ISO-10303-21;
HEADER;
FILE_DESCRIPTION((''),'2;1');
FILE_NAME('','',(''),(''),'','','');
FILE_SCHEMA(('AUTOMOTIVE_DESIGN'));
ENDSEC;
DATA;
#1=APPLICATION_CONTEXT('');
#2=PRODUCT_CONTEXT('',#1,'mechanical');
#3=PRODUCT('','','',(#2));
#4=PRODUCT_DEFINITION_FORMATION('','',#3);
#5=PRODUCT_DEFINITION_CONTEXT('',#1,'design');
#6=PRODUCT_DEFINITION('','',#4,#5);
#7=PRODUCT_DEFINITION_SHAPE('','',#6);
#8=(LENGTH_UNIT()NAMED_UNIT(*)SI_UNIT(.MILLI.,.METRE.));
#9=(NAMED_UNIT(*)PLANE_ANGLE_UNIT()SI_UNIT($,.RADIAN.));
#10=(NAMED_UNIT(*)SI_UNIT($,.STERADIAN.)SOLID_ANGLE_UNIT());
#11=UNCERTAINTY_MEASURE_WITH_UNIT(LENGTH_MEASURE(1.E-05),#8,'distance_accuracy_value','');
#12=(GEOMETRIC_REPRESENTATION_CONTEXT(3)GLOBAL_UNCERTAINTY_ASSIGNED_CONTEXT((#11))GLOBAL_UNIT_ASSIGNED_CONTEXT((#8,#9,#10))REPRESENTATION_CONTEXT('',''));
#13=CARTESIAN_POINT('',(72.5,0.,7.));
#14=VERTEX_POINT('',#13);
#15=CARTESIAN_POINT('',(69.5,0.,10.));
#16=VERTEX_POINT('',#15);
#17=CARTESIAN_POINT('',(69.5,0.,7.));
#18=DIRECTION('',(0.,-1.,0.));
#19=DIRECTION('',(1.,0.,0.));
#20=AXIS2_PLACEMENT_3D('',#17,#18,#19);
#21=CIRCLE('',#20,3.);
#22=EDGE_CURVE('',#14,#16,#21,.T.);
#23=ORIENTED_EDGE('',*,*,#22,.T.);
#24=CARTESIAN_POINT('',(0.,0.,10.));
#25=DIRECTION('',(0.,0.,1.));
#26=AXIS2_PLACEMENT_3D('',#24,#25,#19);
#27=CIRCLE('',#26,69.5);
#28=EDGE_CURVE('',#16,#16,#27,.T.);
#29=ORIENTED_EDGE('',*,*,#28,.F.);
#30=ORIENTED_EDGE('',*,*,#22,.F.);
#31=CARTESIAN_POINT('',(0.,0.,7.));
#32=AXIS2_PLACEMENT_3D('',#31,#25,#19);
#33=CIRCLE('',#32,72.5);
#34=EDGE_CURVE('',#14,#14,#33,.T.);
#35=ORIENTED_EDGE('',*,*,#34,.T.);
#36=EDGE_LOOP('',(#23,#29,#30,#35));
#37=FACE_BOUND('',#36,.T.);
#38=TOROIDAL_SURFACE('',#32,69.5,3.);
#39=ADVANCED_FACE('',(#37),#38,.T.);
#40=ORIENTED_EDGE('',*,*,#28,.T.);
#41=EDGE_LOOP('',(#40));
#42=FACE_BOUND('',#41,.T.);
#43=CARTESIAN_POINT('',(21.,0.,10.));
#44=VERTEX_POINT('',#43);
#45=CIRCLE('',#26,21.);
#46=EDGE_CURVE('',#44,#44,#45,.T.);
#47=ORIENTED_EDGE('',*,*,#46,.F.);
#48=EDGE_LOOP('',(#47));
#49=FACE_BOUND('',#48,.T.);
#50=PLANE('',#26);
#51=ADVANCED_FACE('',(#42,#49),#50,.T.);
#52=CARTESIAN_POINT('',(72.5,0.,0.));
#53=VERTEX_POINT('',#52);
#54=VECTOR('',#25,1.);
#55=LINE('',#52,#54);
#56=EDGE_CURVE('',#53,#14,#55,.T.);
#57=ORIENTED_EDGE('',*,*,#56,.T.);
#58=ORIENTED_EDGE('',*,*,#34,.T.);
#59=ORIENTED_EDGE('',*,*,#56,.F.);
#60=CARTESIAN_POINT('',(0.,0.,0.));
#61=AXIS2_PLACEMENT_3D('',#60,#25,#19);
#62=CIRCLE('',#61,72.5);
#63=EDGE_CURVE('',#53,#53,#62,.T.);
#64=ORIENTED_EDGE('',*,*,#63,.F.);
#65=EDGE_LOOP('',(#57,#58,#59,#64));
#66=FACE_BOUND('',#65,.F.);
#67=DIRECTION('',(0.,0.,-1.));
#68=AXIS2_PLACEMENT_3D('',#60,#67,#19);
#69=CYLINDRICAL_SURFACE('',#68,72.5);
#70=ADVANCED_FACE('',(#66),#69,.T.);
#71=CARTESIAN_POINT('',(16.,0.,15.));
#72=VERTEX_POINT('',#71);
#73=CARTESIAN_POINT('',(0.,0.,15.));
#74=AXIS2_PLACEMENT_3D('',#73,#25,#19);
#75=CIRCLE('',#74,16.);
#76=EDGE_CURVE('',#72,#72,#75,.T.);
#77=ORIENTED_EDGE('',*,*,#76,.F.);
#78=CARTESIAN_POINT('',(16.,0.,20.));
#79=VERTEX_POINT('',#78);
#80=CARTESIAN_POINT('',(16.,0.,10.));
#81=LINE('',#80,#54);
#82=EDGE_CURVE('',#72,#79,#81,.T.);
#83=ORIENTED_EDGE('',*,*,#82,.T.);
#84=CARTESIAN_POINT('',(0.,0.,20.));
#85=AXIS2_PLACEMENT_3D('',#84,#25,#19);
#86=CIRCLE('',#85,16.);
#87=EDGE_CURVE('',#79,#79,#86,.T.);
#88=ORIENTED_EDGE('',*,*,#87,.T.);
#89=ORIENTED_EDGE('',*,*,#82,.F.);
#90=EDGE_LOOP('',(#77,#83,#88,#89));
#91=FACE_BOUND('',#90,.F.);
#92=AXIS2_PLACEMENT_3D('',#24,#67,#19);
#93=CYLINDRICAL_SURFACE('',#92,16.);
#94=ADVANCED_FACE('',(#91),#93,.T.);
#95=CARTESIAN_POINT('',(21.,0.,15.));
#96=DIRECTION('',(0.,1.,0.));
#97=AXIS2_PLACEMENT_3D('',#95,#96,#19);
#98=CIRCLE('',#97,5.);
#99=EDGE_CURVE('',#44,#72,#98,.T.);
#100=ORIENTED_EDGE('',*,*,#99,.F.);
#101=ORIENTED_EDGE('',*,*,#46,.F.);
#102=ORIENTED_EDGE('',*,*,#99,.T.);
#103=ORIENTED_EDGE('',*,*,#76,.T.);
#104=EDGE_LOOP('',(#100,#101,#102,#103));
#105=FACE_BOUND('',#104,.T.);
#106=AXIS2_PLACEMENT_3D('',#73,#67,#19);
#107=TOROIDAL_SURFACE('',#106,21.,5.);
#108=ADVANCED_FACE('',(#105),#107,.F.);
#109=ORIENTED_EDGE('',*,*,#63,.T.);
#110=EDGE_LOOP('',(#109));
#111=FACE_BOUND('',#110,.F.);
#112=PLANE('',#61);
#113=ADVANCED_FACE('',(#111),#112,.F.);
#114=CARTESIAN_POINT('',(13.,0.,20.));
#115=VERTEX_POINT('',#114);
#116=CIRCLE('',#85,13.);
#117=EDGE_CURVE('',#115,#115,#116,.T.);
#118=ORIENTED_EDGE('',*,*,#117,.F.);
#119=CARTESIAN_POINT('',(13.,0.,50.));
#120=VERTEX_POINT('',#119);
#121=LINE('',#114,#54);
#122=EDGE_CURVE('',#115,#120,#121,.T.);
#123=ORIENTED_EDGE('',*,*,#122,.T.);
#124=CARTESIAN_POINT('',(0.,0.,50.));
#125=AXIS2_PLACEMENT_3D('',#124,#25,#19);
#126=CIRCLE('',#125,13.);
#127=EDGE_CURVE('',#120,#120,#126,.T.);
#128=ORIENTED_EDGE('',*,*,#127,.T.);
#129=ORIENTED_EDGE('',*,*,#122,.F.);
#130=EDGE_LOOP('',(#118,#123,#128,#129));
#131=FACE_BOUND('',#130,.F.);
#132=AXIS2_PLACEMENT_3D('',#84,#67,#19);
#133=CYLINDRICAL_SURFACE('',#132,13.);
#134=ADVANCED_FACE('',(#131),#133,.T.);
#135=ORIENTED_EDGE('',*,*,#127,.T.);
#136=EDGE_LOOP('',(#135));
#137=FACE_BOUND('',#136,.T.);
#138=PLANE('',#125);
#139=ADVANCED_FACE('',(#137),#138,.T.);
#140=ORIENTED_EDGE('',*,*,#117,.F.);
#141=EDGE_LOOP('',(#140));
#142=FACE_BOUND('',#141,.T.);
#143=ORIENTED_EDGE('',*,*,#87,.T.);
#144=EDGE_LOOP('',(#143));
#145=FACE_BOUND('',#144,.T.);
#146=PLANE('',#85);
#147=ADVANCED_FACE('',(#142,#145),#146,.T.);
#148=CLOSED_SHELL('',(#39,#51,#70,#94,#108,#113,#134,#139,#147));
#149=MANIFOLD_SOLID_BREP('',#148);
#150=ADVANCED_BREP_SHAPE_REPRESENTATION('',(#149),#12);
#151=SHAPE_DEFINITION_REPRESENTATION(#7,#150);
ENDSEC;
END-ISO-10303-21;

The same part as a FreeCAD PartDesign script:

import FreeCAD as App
import Part
import Sketcher
from FreeCAD import Vector
Q = App.Units.Quantity


def edges_at(feature, points):
    """Names of the edges that pass closest to the given points."""
    edges = feature.Shape.Edges
    near = lambda p: min(range(len(edges)), key=lambda i: edges[i].distToShape(Part.Vertex(*p))[0])
    return sorted({f"Edge{near(p) + 1}" for p in points})

doc = App.newDocument("Part")
params = doc.addObject("Spreadsheet::Sheet", "Params")
for row, (alias, value) in enumerate([
    ("sketch1_diameter", "145 mm"),
    ("pad1_length", "10 mm"),
    ("sketch2_diameter", "32 mm"),
    ("pad2_length", "10 mm"),
    ("sketch3_diameter", "26 mm"),
    ("pad3_length", "30 mm"),
    ("fillet_radius", "3 mm"),
    ("fillet2_radius", "5 mm"),
], start=1):
    params.set(f"A{row}", alias)
    params.set(f"B{row}", "=" + value)
    params.setAlias(f"B{row}", alias)

body = doc.addObject("PartDesign::Body", "Body")

sketch1 = body.newObject("Sketcher::SketchObject", "Sketch")
sketch1.AttachmentSupport = (doc.getObject("XY_Plane"), [""])
sketch1.MapMode = "FlatFace"
sketch1.addGeometry(Part.Circle(Vector(0, 0, 0), Vector(0, 0, 1), 72.5), False)
sketch1.addConstraint([
    Sketcher.Constraint("Coincident", 0, 3, -1, 1),
    Sketcher.Constraint("Diameter", 0, Q("145 mm")),
])
sketch1.setExpression("Constraints[1]", "Params.sketch1_diameter")
pad1 = body.newObject("PartDesign::Pad", "Pad")
pad1.Profile = sketch1
pad1.setExpression("Length", "Params.pad1_length")

sketch2 = body.newObject("Sketcher::SketchObject", "Sketch001")
sketch2.AttachmentSupport = (doc.getObject("XY_Plane"), [""])
sketch2.MapMode = "FlatFace"
sketch2.AttachmentOffset = App.Placement(Vector(0, 0, 10), App.Rotation())
sketch2.addGeometry(Part.Circle(Vector(0, 0, 0), Vector(0, 0, 1), 16), False)
sketch2.addConstraint([
    Sketcher.Constraint("Coincident", 0, 3, -1, 1),
    Sketcher.Constraint("Diameter", 0, Q("32 mm")),
])
sketch2.setExpression("Constraints[1]", "Params.sketch2_diameter")
pad2 = body.newObject("PartDesign::Pad", "Pad001")
pad2.Profile = sketch2
pad2.setExpression("Length", "Params.pad2_length")

sketch3 = body.newObject("Sketcher::SketchObject", "Sketch002")
sketch3.AttachmentSupport = (doc.getObject("XY_Plane"), [""])
sketch3.MapMode = "FlatFace"
sketch3.AttachmentOffset = App.Placement(Vector(0, 0, 20), App.Rotation())
sketch3.addGeometry(Part.Circle(Vector(0, 0, 0), Vector(0, 0, 1), 13), False)
sketch3.addConstraint([
    Sketcher.Constraint("Coincident", 0, 3, -1, 1),
    Sketcher.Constraint("Diameter", 0, Q("26 mm")),
])
sketch3.setExpression("Constraints[1]", "Params.sketch3_diameter")
pad3 = body.newObject("PartDesign::Pad", "Pad002")
pad3.Profile = sketch3
pad3.setExpression("Length", "Params.pad3_length")
doc.recompute()

fillet = body.newObject("PartDesign::Fillet", "Fillet")
fillet.Base = (pad3, edges_at(pad3, [(-72.5, 0, 10)]))
fillet.setExpression("Radius", "Params.fillet_radius")
doc.recompute()

fillet2 = body.newObject("PartDesign::Fillet", "Fillet001")
fillet2.Base = (fillet, edges_at(fillet, [(-72.5, 0, 7), (-69.5, 0, 10), (-16, 0, 10)]))
fillet2.setExpression("Radius", "Params.fillet2_radius")

doc.recompute()
